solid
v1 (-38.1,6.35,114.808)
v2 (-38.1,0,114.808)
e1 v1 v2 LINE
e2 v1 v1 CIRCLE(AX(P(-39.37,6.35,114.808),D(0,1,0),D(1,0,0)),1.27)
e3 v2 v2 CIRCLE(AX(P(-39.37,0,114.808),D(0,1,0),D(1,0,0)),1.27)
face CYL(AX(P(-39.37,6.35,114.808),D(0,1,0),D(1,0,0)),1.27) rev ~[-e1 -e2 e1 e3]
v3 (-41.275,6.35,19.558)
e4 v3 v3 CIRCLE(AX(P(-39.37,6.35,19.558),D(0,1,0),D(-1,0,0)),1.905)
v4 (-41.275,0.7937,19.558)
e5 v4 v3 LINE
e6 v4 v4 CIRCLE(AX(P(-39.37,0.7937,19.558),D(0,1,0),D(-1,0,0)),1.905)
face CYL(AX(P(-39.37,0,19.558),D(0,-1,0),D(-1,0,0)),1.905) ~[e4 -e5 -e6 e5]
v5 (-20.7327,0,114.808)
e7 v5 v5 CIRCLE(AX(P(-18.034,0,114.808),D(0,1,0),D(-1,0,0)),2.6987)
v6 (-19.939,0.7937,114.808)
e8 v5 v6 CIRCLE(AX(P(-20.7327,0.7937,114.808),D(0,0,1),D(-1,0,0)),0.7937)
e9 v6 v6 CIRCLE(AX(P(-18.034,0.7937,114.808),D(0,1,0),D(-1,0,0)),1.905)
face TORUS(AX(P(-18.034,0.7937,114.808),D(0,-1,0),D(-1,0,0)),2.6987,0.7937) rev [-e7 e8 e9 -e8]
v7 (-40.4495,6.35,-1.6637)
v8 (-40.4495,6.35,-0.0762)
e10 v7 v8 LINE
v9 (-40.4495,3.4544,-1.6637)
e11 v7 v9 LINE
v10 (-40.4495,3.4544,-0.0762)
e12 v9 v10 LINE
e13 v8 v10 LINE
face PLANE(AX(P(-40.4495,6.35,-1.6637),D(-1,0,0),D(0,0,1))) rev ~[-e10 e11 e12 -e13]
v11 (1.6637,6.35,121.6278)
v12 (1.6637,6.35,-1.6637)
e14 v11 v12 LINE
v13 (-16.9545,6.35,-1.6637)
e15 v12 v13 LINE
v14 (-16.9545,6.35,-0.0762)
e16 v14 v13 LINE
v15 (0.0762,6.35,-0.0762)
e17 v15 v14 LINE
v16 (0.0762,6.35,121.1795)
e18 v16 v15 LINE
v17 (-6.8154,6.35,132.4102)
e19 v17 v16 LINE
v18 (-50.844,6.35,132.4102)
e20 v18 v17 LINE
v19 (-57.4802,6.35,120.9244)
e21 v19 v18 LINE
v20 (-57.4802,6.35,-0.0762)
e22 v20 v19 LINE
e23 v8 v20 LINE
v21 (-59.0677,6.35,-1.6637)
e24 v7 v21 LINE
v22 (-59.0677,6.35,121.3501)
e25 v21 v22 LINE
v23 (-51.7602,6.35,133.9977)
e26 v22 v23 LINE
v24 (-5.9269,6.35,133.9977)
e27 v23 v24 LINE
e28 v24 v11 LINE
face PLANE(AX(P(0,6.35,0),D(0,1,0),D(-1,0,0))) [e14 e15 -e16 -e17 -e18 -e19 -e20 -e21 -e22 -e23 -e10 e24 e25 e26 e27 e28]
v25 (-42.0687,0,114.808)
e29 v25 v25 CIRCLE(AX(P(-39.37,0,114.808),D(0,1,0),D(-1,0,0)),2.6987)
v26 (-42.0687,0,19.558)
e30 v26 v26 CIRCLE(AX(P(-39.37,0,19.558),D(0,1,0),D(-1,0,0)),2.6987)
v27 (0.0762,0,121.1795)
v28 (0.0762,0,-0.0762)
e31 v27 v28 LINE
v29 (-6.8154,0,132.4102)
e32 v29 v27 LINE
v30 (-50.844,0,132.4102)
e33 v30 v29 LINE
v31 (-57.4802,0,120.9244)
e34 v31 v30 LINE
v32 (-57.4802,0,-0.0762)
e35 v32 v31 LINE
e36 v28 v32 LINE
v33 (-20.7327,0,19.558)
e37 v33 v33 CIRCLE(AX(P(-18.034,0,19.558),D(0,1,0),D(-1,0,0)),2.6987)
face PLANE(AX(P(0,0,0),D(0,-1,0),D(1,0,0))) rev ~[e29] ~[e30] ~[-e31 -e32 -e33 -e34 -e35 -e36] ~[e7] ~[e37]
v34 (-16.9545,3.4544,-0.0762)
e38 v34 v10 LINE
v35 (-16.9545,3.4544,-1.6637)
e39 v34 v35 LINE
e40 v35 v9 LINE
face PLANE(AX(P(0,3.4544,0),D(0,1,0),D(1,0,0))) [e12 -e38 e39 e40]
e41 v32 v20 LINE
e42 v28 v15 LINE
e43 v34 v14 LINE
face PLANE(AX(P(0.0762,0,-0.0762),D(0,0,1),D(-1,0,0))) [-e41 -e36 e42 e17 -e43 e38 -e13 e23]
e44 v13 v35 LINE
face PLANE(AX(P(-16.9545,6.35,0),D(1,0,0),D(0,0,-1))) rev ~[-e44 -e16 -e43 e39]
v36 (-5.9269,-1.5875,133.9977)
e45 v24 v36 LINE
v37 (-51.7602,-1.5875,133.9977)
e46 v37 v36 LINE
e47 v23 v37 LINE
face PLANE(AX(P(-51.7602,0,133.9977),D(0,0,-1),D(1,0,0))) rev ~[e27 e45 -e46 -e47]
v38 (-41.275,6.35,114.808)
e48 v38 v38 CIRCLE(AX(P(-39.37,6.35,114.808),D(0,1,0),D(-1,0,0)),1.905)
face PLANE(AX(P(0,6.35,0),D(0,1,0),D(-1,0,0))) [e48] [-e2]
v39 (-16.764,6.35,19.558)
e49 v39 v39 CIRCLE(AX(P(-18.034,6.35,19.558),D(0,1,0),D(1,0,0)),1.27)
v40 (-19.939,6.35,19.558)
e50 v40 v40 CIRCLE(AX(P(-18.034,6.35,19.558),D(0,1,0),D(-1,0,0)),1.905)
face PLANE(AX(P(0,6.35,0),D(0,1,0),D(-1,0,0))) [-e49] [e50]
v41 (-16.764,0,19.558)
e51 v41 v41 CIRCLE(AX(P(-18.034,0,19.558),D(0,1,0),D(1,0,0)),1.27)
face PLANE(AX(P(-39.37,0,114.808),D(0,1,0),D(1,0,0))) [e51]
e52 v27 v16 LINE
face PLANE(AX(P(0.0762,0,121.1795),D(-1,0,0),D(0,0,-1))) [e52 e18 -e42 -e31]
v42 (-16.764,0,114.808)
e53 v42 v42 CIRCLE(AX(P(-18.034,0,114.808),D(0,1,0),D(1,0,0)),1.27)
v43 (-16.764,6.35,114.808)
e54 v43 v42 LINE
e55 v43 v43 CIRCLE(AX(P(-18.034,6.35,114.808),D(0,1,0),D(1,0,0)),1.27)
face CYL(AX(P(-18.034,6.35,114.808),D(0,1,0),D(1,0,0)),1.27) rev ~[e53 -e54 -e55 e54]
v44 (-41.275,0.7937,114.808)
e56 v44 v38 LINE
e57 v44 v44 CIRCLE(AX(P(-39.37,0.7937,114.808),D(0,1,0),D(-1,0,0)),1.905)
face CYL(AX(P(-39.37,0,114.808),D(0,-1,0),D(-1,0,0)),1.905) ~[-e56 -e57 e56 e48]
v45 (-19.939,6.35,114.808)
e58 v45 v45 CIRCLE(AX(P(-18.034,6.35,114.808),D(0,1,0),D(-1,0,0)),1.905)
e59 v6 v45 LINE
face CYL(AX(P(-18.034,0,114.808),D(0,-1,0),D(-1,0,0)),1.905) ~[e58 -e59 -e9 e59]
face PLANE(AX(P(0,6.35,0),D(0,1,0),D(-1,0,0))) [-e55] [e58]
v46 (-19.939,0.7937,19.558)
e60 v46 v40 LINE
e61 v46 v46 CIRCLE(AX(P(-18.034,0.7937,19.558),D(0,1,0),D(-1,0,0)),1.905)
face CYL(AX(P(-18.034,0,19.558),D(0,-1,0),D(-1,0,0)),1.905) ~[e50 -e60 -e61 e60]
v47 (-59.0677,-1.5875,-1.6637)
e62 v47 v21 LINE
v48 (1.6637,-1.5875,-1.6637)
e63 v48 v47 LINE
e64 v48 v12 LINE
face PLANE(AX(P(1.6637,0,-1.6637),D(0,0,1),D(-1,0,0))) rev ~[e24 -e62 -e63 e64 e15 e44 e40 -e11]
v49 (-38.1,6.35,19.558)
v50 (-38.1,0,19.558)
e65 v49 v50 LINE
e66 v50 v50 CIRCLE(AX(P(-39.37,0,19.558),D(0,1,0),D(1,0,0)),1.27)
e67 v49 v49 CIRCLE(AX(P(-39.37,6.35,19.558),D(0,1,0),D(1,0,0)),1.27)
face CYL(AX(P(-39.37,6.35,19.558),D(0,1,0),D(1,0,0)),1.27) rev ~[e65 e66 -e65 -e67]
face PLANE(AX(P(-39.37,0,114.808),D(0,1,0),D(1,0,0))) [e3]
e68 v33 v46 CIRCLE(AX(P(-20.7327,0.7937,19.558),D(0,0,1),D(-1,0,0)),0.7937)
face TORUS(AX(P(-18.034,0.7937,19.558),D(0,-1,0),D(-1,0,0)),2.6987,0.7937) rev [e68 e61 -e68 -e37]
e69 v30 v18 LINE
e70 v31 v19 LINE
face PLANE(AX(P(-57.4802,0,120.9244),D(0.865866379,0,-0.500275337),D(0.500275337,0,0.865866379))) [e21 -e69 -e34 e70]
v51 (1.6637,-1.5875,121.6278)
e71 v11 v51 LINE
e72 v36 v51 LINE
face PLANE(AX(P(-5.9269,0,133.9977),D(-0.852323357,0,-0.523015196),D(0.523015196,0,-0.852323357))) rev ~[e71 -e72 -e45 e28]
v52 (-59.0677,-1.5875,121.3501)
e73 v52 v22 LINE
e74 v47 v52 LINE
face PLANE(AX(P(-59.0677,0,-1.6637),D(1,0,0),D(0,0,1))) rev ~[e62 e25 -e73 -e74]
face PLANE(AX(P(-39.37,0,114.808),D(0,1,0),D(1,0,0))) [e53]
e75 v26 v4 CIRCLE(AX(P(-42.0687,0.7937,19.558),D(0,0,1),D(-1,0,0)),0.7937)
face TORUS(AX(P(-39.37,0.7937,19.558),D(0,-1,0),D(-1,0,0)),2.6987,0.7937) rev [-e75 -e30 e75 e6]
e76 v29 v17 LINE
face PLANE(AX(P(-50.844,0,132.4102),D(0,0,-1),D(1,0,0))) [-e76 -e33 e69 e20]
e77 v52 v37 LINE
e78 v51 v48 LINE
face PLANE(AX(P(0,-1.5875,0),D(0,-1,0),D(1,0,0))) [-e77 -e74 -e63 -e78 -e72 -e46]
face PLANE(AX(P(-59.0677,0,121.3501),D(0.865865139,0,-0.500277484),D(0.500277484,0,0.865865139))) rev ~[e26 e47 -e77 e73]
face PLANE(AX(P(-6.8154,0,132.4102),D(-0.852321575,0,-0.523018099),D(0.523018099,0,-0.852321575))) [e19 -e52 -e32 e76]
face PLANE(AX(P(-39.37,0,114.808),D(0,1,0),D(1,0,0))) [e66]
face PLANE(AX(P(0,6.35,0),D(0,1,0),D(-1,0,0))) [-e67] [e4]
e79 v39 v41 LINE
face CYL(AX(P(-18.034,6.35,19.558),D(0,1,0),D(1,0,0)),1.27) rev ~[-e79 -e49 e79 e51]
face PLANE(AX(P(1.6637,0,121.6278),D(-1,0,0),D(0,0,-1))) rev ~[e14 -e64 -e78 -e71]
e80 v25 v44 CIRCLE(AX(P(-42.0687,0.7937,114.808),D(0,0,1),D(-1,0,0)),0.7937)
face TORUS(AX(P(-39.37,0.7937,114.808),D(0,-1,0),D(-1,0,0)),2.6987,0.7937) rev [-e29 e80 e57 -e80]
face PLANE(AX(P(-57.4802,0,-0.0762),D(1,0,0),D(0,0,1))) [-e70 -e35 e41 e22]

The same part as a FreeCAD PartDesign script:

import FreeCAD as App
import Part
import Sketcher
Q = App.Units.Quantity


def edges_at(feature, points):
    """Names of the edges that pass closest to the given points."""
    edges = feature.Shape.Edges
    near = lambda p: min(range(len(edges)), key=lambda i: edges[i].distToShape(Part.Vertex(*p))[0])
    return sorted({f"Edge{near(p) + 1}" for p in points})

doc = App.newDocument("Part")
body = doc.addObject("PartDesign::Body", "Body")

# Sketch on XZ plane
sketch1 = body.newObject("Sketcher::SketchObject", "Sketch")
sketch1.AttachmentSupport = (doc.getObject("XZ_Plane"), [""])
sketch1.MapMode = "FlatFace"
sketch1.addGeometry([
    Part.LineSegment(App.Vector(1.6637, 121.6278, 0), App.Vector(1.6637, -1.6637, 0)),  # 0
    Part.LineSegment(App.Vector(1.6637, -1.6637, 0), App.Vector(-59.0677, -1.6637, 0)),  # 1
    Part.LineSegment(App.Vector(-59.0677, -1.6637, 0), App.Vector(-59.0677, 121.3501, 0)),  # 2
    Part.LineSegment(App.Vector(-59.0677, 121.3501, 0), App.Vector(-51.7602, 133.9977, 0)),  # 3
    Part.LineSegment(App.Vector(-51.7602, 133.9977, 0), App.Vector(-5.9269, 133.9977, 0)),  # 4
    Part.LineSegment(App.Vector(-5.9269, 133.9977, 0), App.Vector(1.6637, 121.6278, 0)),  # 5
    Part.LineSegment(App.Vector(-57.4802, -0.0762, 0), App.Vector(0.0762, -0.0762, 0)),  # 6
    Part.LineSegment(App.Vector(0.0762, -0.0762, 0), App.Vector(0.0762, 121.1795, 0)),  # 7
    Part.LineSegment(App.Vector(0.0762, 121.1795, 0), App.Vector(-6.8154, 132.4102, 0)),  # 8
    Part.LineSegment(App.Vector(-6.8154, 132.4102, 0), App.Vector(-50.844, 132.4102, 0)),  # 9
    Part.LineSegment(App.Vector(-50.844, 132.4102, 0), App.Vector(-57.4802, 120.9244, 0)),  # 10
    Part.LineSegment(App.Vector(-57.4802, 120.9244, 0), App.Vector(-57.4802, -0.0762, 0)),  # 11
], False)
sketch1.addConstraint([
    Sketcher.Constraint("Coincident", 0, 2, 1, 1),
    Sketcher.Constraint("Coincident", 1, 2, 2, 1),
    Sketcher.Constraint("Coincident", 2, 2, 3, 1),
    Sketcher.Constraint("Coincident", 3, 2, 4, 1),
    Sketcher.Constraint("Coincident", 4, 2, 5, 1),
    Sketcher.Constraint("Coincident", 5, 2, 0, 1),
    Sketcher.Constraint("Coincident", 6, 2, 7, 1),
    Sketcher.Constraint("Coincident", 7, 2, 8, 1),
    Sketcher.Constraint("Coincident", 8, 2, 9, 1),
    Sketcher.Constraint("Coincident", 9, 2, 10, 1),
    Sketcher.Constraint("Coincident", 10, 2, 11, 1),
    Sketcher.Constraint("Coincident", 11, 2, 6, 1),
    Sketcher.Constraint("Vertical", 0),
    Sketcher.Constraint("Horizontal", 1),
    Sketcher.Constraint("Vertical", 2),
    Sketcher.Constraint("Horizontal", 4),
    Sketcher.Constraint("Horizontal", 6),
    Sketcher.Constraint("Vertical", 7),
    Sketcher.Constraint("Horizontal", 9),
    Sketcher.Constraint("Vertical", 11),
    Sketcher.Constraint("Parallel", 5, 8),
    Sketcher.Constraint("Parallel", 3, 10),
    Sketcher.Constraint("DistanceX", -1, 1, 6, 2, Q("0.003 in")),
    Sketcher.Constraint("DistanceY", 6, 2, -1, 1, Q("0.003 in")),
    Sketcher.Constraint("DistanceX", 6, 2, 0, 2, Q("0.0625 in")),
    Sketcher.Constraint("DistanceY", 0, 2, 6, 2, Q("0.0625 in")),
    Sketcher.Constraint("DistanceY", 8, 2, 4, 2, Q("0.0625 in")),
    Sketcher.Constraint("DistanceX", 2, 2, 10, 2, Q("0.0625 in")),
    Sketcher.Constraint("DistanceX", 1, 2, 1, 1, Q("2.391 in")),
    Sketcher.Constraint("DistanceY", 0, 2, 0, 1, Q("4.854 in")),
    Sketcher.Constraint("DistanceX", 9, 2, 9, 1, Q("1.7334 in")),
    Sketcher.Constraint("DistanceY", 11, 2, 11, 1, Q("4.7638 in")),
    Sketcher.Constraint("DistanceY", -1, 1, 8, 2, Q("5.213 in")),
    Sketcher.Constraint("DistanceX", 4, 1, 4, 2, Q("45.8333 mm")),
    Sketcher.Constraint("DistanceY", 2, 1, 2, 2, Q("123.0138 mm")),
    Sketcher.Constraint("DistanceX", 3, 2, -1, 1, Q("2.0378 in")),
])
pad1 = body.newObject("PartDesign::Pad", "Pad")
pad1.Profile = sketch1
pad1.Length = Q("0.25 in")
pad1.Reversed = True

# Sketch on XZ plane
sketch2 = body.newObject("Sketcher::SketchObject", "Sketch001")
sketch2.AttachmentSupport = (doc.getObject("XZ_Plane"), [""])
sketch2.MapMode = "FlatFace"
sketch2.addGeometry([
    Part.LineSegment(App.Vector(-59.0677, 121.3501, 0), App.Vector(-59.0677, -1.6637, 0)),  # 0
    Part.LineSegment(App.Vector(-59.0677, -1.6637, 0), App.Vector(1.6637, -1.6637, 0)),  # 1
    Part.LineSegment(App.Vector(1.6637, -1.6637, 0), App.Vector(1.6637, 121.6278, 0)),  # 2
    Part.LineSegment(App.Vector(1.6637, 121.6278, 0), App.Vector(-5.9269, 133.9977, 0)),  # 3
    Part.LineSegment(App.Vector(-5.9269, 133.9977, 0), App.Vector(-51.7602, 133.9977, 0)),  # 4
    Part.LineSegment(App.Vector(-51.7602, 133.9977, 0), App.Vector(-59.0677, 121.3501, 0)),  # 5
], False)
sketch2.addConstraint([
    Sketcher.Constraint("Coincident", 0, 2, 1, 1),
    Sketcher.Constraint("Coincident", 1, 2, 2, 1),
    Sketcher.Constraint("Coincident", 2, 2, 3, 1),
    Sketcher.Constraint("Coincident", 3, 2, 4, 1),
    Sketcher.Constraint("Coincident", 4, 2, 5, 1),
    Sketcher.Constraint("Coincident", 5, 2, 0, 1),
    Sketcher.Constraint("Vertical", 0),
    Sketcher.Constraint("Horizontal", 1),
    Sketcher.Constraint("Vertical", 2),
    Sketcher.Constraint("Horizontal", 4),
    Sketcher.Constraint("DistanceX", 1, 1, 1, 2, Q("2.391 in")),
    Sketcher.Constraint("DistanceY", 2, 1, 2, 2, Q("4.854 in")),
    Sketcher.Constraint("DistanceY", 2, 2, 3, 2, Q("0.487 in")),
    Sketcher.Constraint("DistanceX", 4, 2, 4, 1, Q("45.8333 mm")),
    Sketcher.Constraint("DistanceY", 0, 2, 0, 1, Q("123.0138 mm")),
    Sketcher.Constraint("DistanceX", 0, 2, -1, 1, Q("2.3255 in")),
    Sketcher.Constraint("DistanceY", 0, 2, -1, 1, Q("0.0655 in")),
    Sketcher.Constraint("DistanceX", 4, 2, -1, 1, Q("2.0378 in")),
])
pad2 = body.newObject("PartDesign::Pad", "Pad001")
pad2.Profile = sketch2
pad2.Length = Q("0.0625 in")

# Sketch on XZ plane
sketch3 = body.newObject("Sketcher::SketchObject", "Sketch002")
sketch3.AttachmentSupport = (doc.getObject("XZ_Plane"), [""])
sketch3.MapMode = "FlatFace"
sketch3.addGeometry([
    Part.Circle(App.Vector(-39.37, 19.558, 0), App.Vector(0, 0, 1), 1.905),
    Part.Circle(App.Vector(-18.034, 19.558, 0), App.Vector(0, 0, 1), 1.905),
    Part.Circle(App.Vector(-18.034, 114.808, 0), App.Vector(0, 0, 1), 1.905),
    Part.Circle(App.Vector(-39.37, 114.808, 0), App.Vector(0, 0, 1), 1.905),
], False)
sketch3.addConstraint([
    Sketcher.Constraint("Equal", 0, 1),
    Sketcher.Constraint("Equal", 1, 2),
    Sketcher.Constraint("Equal", 2, 3),
    Sketcher.Constraint("Horizontal", 0, 3, 1, 3),
    Sketcher.Constraint("Horizontal", 2, 3, 3, 3),
    Sketcher.Constraint("Vertical", 1, 3, 2, 3),
    Sketcher.Constraint("Vertical", 0, 3, 3, 3),
    Sketcher.Constraint("Diameter", 0, Q("0.15 in")),
    Sketcher.Constraint("DistanceX", 0, 3, -1, 1, Q("1.55 in")),
    Sketcher.Constraint("DistanceY", -1, 1, 0, 3, Q("0.77 in")),
    Sketcher.Constraint("DistanceX", 1, 3, -1, 1, Q("0.71 in")),
    Sketcher.Constraint("DistanceY", -1, 1, 2, 3, Q("4.52 in")),
])
pad3 = body.newObject("PartDesign::Pad", "Pad002")
pad3.Profile = sketch3
pad3.Length = Q("0.25 in")
pad3.Reversed = True

# Sketch on XZ plane
sketch4 = body.newObject("Sketcher::SketchObject", "Sketch003")
sketch4.AttachmentSupport = (doc.getObject("XZ_Plane"), [""])
sketch4.MapMode = "FlatFace"
sketch4.AttachmentOffset = App.Placement(App.Vector(0, 0, -0.25 * 25.4), App.Rotation())
sketch4.addGeometry([
    Part.Circle(App.Vector(-39.37, 19.558, 0), App.Vector(0, 0, 1), 1.27),
    Part.Circle(App.Vector(-39.37, 114.808, 0), App.Vector(0, 0, 1), 1.27),
    Part.Circle(App.Vector(-18.034, 114.808, 0), App.Vector(0, 0, 1), 1.27),
    Part.Circle(App.Vector(-18.034, 19.558, 0), App.Vector(0, 0, 1), 1.27),
], False)
sketch4.addConstraint([
    Sketcher.Constraint("Equal", 0, 1),
    Sketcher.Constraint("Equal", 1, 2),
    Sketcher.Constraint("Equal", 2, 3),
    Sketcher.Constraint("Horizontal", 1, 3, 2, 3),
    Sketcher.Constraint("Horizontal", 0, 3, 3, 3),
    Sketcher.Constraint("Vertical", 0, 3, 1, 3),
    Sketcher.Constraint("Vertical", 2, 3, 3, 3),
    Sketcher.Constraint("Diameter", 0, Q("0.1 in")),
    Sketcher.Constraint("DistanceX", 0, 3, -1, 1, Q("1.55 in")),
    Sketcher.Constraint("DistanceY", -1, 1, 0, 3, Q("0.77 in")),
    Sketcher.Constraint("DistanceY", -1, 1, 1, 3, Q("4.52 in")),
    Sketcher.Constraint("DistanceX", 2, 3, -1, 1, Q("0.71 in")),
])
pocket1 = body.newObject("PartDesign::Pocket", "Pocket")
pocket1.Profile = sketch4
pocket1.Length = Q("0.25 in")
pocket1.Reversed = True
doc.recompute()

fillet = body.newObject("PartDesign::Fillet", "Fillet")
fillet.Base = (pocket1, edges_at(pocket1, [
    (-37.465, 0, 114.808),
    (-37.465, 0, 19.558),
    (-16.129, 0, 19.558),
    (-16.129, 0, 114.808),
]))
fillet.Radius = Q("0.031248 in")

# Sketch on XZ plane
sketch5 = body.newObject("Sketcher::SketchObject", "Sketch004")
sketch5.AttachmentSupport = (doc.getObject("XZ_Plane"), [""])
sketch5.MapMode = "FlatFace"
sketch5.AttachmentOffset = App.Placement(App.Vector(0, 0, -0.25 * 25.4), App.Rotation())
sketch5.addGeometry([
    Part.LineSegment(App.Vector(-16.9545, 0, 0), App.Vector(-16.9545, -1.6637, 0)),
    Part.LineSegment(App.Vector(-16.9545, -1.6637, 0), App.Vector(-40.4495, -1.6637, 0)),
    Part.LineSegment(App.Vector(-40.4495, -1.6637, 0), App.Vector(-40.4495, 0, 0)),
    Part.LineSegment(App.Vector(-40.4495, 0, 0), App.Vector(-16.9545, 0, 0)),
], False)
sketch5.addConstraint([
    Sketcher.Constraint("Coincident", 0, 2, 1, 1),
    Sketcher.Constraint("Coincident", 1, 2, 2, 1),
    Sketcher.Constraint("Coincident", 2, 2, 3, 1),
    Sketcher.Constraint("Coincident", 3, 2, 0, 1),
    Sketcher.Constraint("Vertical", 0),
    Sketcher.Constraint("Horizontal", 1),
    Sketcher.Constraint("Vertical", 2),
    Sketcher.Constraint("Horizontal", 3),
    Sketcher.Constraint("PointOnObject", 2, 2, -1),
    Sketcher.Constraint("DistanceX", 1, 2, 1, 1, Q("0.925 in")),
    Sketcher.Constraint("DistanceY", 0, 2, 0, 1, Q("0.0655 in")),
    Sketcher.Constraint("DistanceX", 0, 2, -1, 1, Q("0.6675 in")),
])
pocket2 = body.newObject("PartDesign::Pocket", "Pocket001")
pocket2.Profile = sketch5
pocket2.Length = Q("0.114 in")
pocket2.Reversed = True

doc.recompute()
